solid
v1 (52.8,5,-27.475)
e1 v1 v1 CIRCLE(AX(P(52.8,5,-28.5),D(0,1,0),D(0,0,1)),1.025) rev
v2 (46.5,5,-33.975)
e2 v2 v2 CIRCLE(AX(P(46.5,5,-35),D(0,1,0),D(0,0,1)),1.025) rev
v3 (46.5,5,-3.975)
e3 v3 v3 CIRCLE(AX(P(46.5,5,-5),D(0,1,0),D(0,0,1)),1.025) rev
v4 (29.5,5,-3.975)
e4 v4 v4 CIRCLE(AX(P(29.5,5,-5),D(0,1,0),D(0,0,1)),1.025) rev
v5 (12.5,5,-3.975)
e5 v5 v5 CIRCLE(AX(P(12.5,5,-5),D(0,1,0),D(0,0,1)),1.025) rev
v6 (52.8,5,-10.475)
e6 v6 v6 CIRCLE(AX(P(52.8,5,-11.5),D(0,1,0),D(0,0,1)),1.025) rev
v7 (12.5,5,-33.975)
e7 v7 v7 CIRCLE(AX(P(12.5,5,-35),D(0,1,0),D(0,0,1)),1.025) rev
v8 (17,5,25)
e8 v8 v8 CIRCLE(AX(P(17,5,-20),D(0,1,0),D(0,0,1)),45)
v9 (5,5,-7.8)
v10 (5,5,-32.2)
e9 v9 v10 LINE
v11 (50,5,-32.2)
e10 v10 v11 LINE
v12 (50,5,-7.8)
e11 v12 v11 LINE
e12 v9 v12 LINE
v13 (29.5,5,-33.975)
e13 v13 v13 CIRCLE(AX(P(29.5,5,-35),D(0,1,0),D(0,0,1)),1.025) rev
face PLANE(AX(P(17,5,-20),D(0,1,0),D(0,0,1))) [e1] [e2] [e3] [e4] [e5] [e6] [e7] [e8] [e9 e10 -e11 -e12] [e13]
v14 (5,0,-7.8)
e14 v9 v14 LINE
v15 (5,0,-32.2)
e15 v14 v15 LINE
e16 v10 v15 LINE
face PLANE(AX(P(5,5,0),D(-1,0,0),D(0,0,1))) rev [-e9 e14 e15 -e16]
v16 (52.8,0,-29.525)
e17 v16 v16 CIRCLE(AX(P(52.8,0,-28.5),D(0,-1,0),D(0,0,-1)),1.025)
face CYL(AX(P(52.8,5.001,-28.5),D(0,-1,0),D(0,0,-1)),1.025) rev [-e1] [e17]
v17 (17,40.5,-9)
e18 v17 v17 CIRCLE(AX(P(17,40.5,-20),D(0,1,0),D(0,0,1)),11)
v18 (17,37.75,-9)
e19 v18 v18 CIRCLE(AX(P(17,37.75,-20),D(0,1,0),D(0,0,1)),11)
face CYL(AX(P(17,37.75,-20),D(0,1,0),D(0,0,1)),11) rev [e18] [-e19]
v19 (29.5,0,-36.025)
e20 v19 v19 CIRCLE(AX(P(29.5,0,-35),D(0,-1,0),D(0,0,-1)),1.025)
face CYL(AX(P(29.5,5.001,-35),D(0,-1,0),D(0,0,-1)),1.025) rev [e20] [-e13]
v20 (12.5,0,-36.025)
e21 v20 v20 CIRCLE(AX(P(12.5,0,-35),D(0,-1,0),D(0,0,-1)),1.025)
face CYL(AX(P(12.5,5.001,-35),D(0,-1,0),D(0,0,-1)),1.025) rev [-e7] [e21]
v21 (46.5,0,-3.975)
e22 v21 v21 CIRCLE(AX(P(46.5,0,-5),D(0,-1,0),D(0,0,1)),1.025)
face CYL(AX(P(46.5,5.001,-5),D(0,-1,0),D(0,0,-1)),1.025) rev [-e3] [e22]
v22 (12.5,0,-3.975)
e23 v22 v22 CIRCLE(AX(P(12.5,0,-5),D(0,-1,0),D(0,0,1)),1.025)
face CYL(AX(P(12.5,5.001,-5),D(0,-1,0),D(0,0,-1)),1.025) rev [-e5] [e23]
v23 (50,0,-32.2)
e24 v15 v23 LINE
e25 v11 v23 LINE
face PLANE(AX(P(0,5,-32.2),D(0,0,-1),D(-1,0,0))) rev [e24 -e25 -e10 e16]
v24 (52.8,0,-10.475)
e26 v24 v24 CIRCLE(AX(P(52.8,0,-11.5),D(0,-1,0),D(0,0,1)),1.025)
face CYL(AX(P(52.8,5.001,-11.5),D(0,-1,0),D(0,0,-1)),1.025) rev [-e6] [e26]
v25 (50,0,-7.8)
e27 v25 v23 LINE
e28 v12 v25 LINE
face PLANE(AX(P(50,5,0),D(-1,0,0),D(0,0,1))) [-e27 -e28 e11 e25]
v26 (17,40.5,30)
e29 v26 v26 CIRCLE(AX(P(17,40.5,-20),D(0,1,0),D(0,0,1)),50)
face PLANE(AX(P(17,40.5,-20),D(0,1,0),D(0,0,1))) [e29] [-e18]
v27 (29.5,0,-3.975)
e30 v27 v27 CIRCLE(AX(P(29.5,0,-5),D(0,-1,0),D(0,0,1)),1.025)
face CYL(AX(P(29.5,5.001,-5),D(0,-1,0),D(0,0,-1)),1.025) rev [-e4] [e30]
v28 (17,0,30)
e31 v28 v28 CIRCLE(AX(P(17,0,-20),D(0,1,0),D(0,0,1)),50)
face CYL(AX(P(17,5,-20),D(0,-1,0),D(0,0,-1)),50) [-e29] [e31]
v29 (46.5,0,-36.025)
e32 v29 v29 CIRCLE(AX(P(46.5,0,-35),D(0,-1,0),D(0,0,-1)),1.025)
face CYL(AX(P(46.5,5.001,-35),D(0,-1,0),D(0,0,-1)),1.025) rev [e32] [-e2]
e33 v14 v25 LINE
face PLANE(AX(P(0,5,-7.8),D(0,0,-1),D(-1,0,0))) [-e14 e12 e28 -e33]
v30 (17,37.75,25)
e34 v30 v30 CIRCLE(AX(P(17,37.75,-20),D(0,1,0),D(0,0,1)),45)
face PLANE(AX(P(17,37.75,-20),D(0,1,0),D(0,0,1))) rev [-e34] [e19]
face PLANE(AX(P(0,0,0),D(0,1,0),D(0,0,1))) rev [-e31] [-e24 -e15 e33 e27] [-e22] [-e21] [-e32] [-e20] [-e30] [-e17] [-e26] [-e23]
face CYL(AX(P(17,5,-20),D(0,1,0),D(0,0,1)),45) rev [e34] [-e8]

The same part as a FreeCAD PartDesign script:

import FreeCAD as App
import Part
import Sketcher
Q = App.Units.Quantity

doc = App.newDocument("Part")
body = doc.addObject("PartDesign::Body", "Body")

# Sketch on XZ plane
sketch1 = doc.addObject("Sketcher::SketchObject", "Sketch")
body.addObject(sketch1)
sketch1.AttachmentSupport = (doc.XZ_Plane, [""])
sketch1.MapMode = "FlatFace"
sketch1.addGeometry([
    Part.Circle(App.Vector(17, -20, 0), App.Vector(0, 0, 1), 50),  # 0
    Part.LineSegment(App.Vector(50, -7.8, 0), App.Vector(5, -7.8, 0)),  # 1
    Part.LineSegment(App.Vector(5, -7.8, 0), App.Vector(5, -32.2, 0)),  # 2
    Part.LineSegment(App.Vector(5, -32.2, 0), App.Vector(50, -32.2, 0)),  # 3
    Part.LineSegment(App.Vector(50, -32.2, 0), App.Vector(50, -7.8, 0)),  # 4
], False)
sketch1.addConstraint([
    Sketcher.Constraint("Coincident", 1, 2, 2, 1),
    Sketcher.Constraint("Coincident", 2, 2, 3, 1),
    Sketcher.Constraint("Coincident", 3, 2, 4, 1),
    Sketcher.Constraint("Coincident", 4, 2, 1, 1),
    Sketcher.Constraint("Horizontal", 1),
    Sketcher.Constraint("Vertical", 2),
    Sketcher.Constraint("Horizontal", 3),
    Sketcher.Constraint("Vertical", 4),
    Sketcher.Constraint("Diameter", 0, Q("100 mm")),
    Sketcher.Constraint("DistanceX", 1, 2, 1, 1, Q("45 mm")),
    Sketcher.Constraint("DistanceY", 2, 2, 2, 1, Q("24.4 mm")),
    Sketcher.Constraint("DistanceX", -1, 1, 0, 3, Q("17 mm")),
    Sketcher.Constraint("DistanceY", 0, 3, -1, 1, Q("20 mm")),
    Sketcher.Constraint("DistanceX", -1, 1, 1, 2, Q("5 mm")),
    Sketcher.Constraint("DistanceY", 1, 2, -1, 1, Q("7.8 mm")),
])
pad1 = doc.addObject("PartDesign::Pad", "Pad")
body.addObject(pad1)
pad1.Profile = sketch1
pad1.Length = 5
pad1.Reversed = True

# Sketch on XZ plane
sketch2 = doc.addObject("Sketcher::SketchObject", "Sketch001")
body.addObject(sketch2)
sketch2.AttachmentSupport = (doc.XZ_Plane, [""])
sketch2.MapMode = "FlatFace"
sketch2.addGeometry(Part.Circle(App.Vector(52.8, -28.5, 0), App.Vector(0, 0, 1), 1.025), False)
sketch2.addConstraint([
    Sketcher.Constraint("Diameter", 0, Q("2.05 mm")),
    Sketcher.Constraint("DistanceX", -1, 1, 0, 3, Q("52.8 mm")),
    Sketcher.Constraint("DistanceY", 0, 3, -1, 1, Q("28.5 mm")),
])
pocket1 = doc.addObject("PartDesign::Pocket", "Pocket")
body.addObject(pocket1)
pocket1.Profile = sketch2
pocket1.Type = "UpToFirst"

# Sketch on XZ plane
sketch3 = doc.addObject("Sketcher::SketchObject", "Sketch002")
body.addObject(sketch3)
sketch3.AttachmentSupport = (doc.XZ_Plane, [""])
sketch3.MapMode = "FlatFace"
sketch3.addGeometry(Part.Circle(App.Vector(46.5, -35, 0), App.Vector(0, 0, 1), 1.025), False)
sketch3.addConstraint([
    Sketcher.Constraint("Diameter", 0, Q("2.05 mm")),
    Sketcher.Constraint("DistanceY", 0, 3, -1, 1, Q("35 mm")),
    Sketcher.Constraint("DistanceX", -1, 1, 0, 3, Q("46.5 mm")),
])
pocket2 = doc.addObject("PartDesign::Pocket", "Pocket001")
body.addObject(pocket2)
pocket2.Profile = sketch3
pocket2.Type = "UpToFirst"

# Sketch on XZ plane
sketch4 = doc.addObject("Sketcher::SketchObject", "Sketch003")
body.addObject(sketch4)
sketch4.AttachmentSupport = (doc.XZ_Plane, [""])
sketch4.MapMode = "FlatFace"
sketch4.addGeometry(Part.Circle(App.Vector(29.5, -35, 0), App.Vector(0, 0, 1), 1.025), False)
sketch4.addConstraint([
    Sketcher.Constraint("Diameter", 0, Q("2.05 mm")),
    Sketcher.Constraint("DistanceY", 0, 3, -1, 1, Q("35 mm")),
    Sketcher.Constraint("DistanceX", -1, 1, 0, 3, Q("29.5 mm")),
])
pocket3 = doc.addObject("PartDesign::Pocket", "Pocket002")
body.addObject(pocket3)
pocket3.Profile = sketch4
pocket3.Type = "UpToFirst"

# Sketch on XZ plane
sketch5 = doc.addObject("Sketcher::SketchObject", "Sketch004")
body.addObject(sketch5)
sketch5.AttachmentSupport = (doc.XZ_Plane, [""])
sketch5.MapMode = "FlatFace"
sketch5.addGeometry(Part.Circle(App.Vector(12.5, -35, 0), App.Vector(0, 0, 1), 1.025), False)
sketch5.addConstraint([
    Sketcher.Constraint("Diameter", 0, Q("2.05 mm")),
    Sketcher.Constraint("DistanceY", 0, 3, -1, 1, Q("35 mm")),
    Sketcher.Constraint("DistanceX", -1, 1, 0, 3, Q("12.5 mm")),
])
pocket4 = doc.addObject("PartDesign::Pocket", "Pocket003")
body.addObject(pocket4)
pocket4.Profile = sketch5
pocket4.Type = "UpToFirst"

# Sketch on XZ plane
sketch6 = doc.addObject("Sketcher::SketchObject", "Sketch005")
body.addObject(sketch6)
sketch6.AttachmentSupport = (doc.XZ_Plane, [""])
sketch6.MapMode = "FlatFace"
sketch6.addGeometry(Part.Circle(App.Vector(12.5, -5, 0), App.Vector(0, 0, 1), 1.025), False)
sketch6.addConstraint([
    Sketcher.Constraint("Diameter", 0, Q("2.05 mm")),
    Sketcher.Constraint("DistanceY", 0, 3, -1, 1, Q("5 mm")),
    Sketcher.Constraint("DistanceX", -1, 1, 0, 3, Q("12.5 mm")),
])
pocket5 = doc.addObject("PartDesign::Pocket", "Pocket004")
body.addObject(pocket5)
pocket5.Profile = sketch6
pocket5.Type = "UpToFirst"

# Sketch on XZ plane
sketch7 = doc.addObject("Sketcher::SketchObject", "Sketch006")
body.addObject(sketch7)
sketch7.AttachmentSupport = (doc.XZ_Plane, [""])
sketch7.MapMode = "FlatFace"
sketch7.addGeometry(Part.Circle(App.Vector(29.5, -5, 0), App.Vector(0, 0, 1), 1.025), False)
sketch7.addConstraint([
    Sketcher.Constraint("Diameter", 0, Q("2.05 mm")),
    Sketcher.Constraint("DistanceY", 0, 3, -1, 1, Q("5 mm")),
    Sketcher.Constraint("DistanceX", -1, 1, 0, 3, Q("29.5 mm")),
])
pocket6 = doc.addObject("PartDesign::Pocket", "Pocket005")
body.addObject(pocket6)
pocket6.Profile = sketch7
pocket6.Type = "UpToFirst"

# Sketch on XZ plane
sketch8 = doc.addObject("Sketcher::SketchObject", "Sketch007")
body.addObject(sketch8)
sketch8.AttachmentSupport = (doc.XZ_Plane, [""])
sketch8.MapMode = "FlatFace"
sketch8.addGeometry(Part.Circle(App.Vector(46.5, -5, 0), App.Vector(0, 0, 1), 1.025), False)
sketch8.addConstraint([
    Sketcher.Constraint("Diameter", 0, Q("2.05 mm")),
    Sketcher.Constraint("DistanceY", 0, 3, -1, 1, Q("5 mm")),
    Sketcher.Constraint("DistanceX", -1, 1, 0, 3, Q("46.5 mm")),
])
pocket7 = doc.addObject("PartDesign::Pocket", "Pocket006")
body.addObject(pocket7)
pocket7.Profile = sketch8
pocket7.Type = "UpToFirst"

# Sketch on XZ plane
sketch9 = doc.addObject("Sketcher::SketchObject", "Sketch008")
body.addObject(sketch9)
sketch9.AttachmentSupport = (doc.XZ_Plane, [""])
sketch9.MapMode = "FlatFace"
sketch9.addGeometry(Part.Circle(App.Vector(52.8, -11.5, 0), App.Vector(0, 0, 1), 1.025), False)
sketch9.addConstraint([
    Sketcher.Constraint("Diameter", 0, Q("2.05 mm")),
    Sketcher.Constraint("DistanceX", -1, 1, 0, 3, Q("52.8 mm")),
    Sketcher.Constraint("DistanceY", 0, 3, -1, 1, Q("11.5 mm")),
])
pocket8 = doc.addObject("PartDesign::Pocket", "Pocket007")
body.addObject(pocket8)
pocket8.Profile = sketch9
pocket8.Type = "UpToFirst"

# Sketch on XZ plane
sketch10 = doc.addObject("Sketcher::SketchObject", "Sketch009")
body.addObject(sketch10)
sketch10.AttachmentSupport = (doc.XZ_Plane, [""])
sketch10.MapMode = "FlatFace"
sketch10.AttachmentOffset = App.Placement(App.Vector(0, 0, -5), App.Rotation())
sketch10.addGeometry(Part.Circle(App.Vector(17, -20, 0), App.Vector(0, 0, 1), 50), False)
sketch10.addConstraint([
    Sketcher.Constraint("Diameter", 0, Q("100 mm")),
    Sketcher.Constraint("DistanceX", -1, 1, 0, 3, Q("17 mm")),
    Sketcher.Constraint("DistanceY", 0, 3, -1, 1, Q("20 mm")),
])
pad2 = doc.addObject("PartDesign::Pad", "Pad001")
body.addObject(pad2)
pad2.Profile = sketch10
pad2.Length = 32.75
pad2.Reversed = True

# Sketch on XZ plane
sketch11 = doc.addObject("Sketcher::SketchObject", "Sketch010")
body.addObject(sketch11)
sketch11.AttachmentSupport = (doc.XZ_Plane, [""])
sketch11.MapMode = "FlatFace"
sketch11.AttachmentOffset = App.Placement(App.Vector(0, 0, -37.75), App.Rotation())
sketch11.addGeometry(Part.Circle(App.Vector(17, -20, 0), App.Vector(0, 0, 1), 45), False)
sketch11.addConstraint([
    Sketcher.Constraint("Diameter", 0, Q("90 mm")),
    Sketcher.Constraint("DistanceX", -1, 1, 0, 3, Q("17 mm")),
    Sketcher.Constraint("DistanceY", 0, 3, -1, 1, Q("20 mm")),
])
pocket9 = doc.addObject("PartDesign::Pocket", "Pocket008")
body.addObject(pocket9)
pocket9.Profile = sketch11
pocket9.Length = 32.75
pocket9.Reversed = True

# Sketch on XZ plane
sketch12 = doc.addObject("Sketcher::SketchObject", "Sketch011")
body.addObject(sketch12)
sketch12.AttachmentSupport = (doc.XZ_Plane, [""])
sketch12.MapMode = "FlatFace"
sketch12.AttachmentOffset = App.Placement(App.Vector(0, 0, -37.75), App.Rotation())
sketch12.addGeometry(Part.Circle(App.Vector(17, -20, 0), App.Vector(0, 0, 1), 50), False)
sketch12.addConstraint([
    Sketcher.Constraint("Diameter", 0, Q("100 mm")),
    Sketcher.Constraint("DistanceX", -1, 1, 0, 3, Q("17 mm")),
    Sketcher.Constraint("DistanceY", 0, 3, -1, 1, Q("20 mm")),
])
pad3 = doc.addObject("PartDesign::Pad", "Pad002")
body.addObject(pad3)
pad3.Profile = sketch12
pad3.Length = 2.75
pad3.Reversed = True

# Sketch on XZ plane
sketch13 = doc.addObject("Sketcher::SketchObject", "Sketch012")
body.addObject(sketch13)
sketch13.AttachmentSupport = (doc.XZ_Plane, [""])
sketch13.MapMode = "FlatFace"
sketch13.AttachmentOffset = App.Placement(App.Vector(0, 0, -40.5), App.Rotation())
sketch13.addGeometry(Part.Circle(App.Vector(17, -20, 0), App.Vector(0, 0, 1), 11), False)
sketch13.addConstraint([
    Sketcher.Constraint("Diameter", 0, Q("22 mm")),
    Sketcher.Constraint("DistanceX", -1, 1, 0, 3, Q("17 mm")),
    Sketcher.Constraint("DistanceY", 0, 3, -1, 1, Q("20 mm")),
])
pocket10 = doc.addObject("PartDesign::Pocket", "Pocket009")
body.addObject(pocket10)
pocket10.Profile = sketch13
pocket10.Length = 2.75
pocket10.Reversed = True

doc.recompute()
